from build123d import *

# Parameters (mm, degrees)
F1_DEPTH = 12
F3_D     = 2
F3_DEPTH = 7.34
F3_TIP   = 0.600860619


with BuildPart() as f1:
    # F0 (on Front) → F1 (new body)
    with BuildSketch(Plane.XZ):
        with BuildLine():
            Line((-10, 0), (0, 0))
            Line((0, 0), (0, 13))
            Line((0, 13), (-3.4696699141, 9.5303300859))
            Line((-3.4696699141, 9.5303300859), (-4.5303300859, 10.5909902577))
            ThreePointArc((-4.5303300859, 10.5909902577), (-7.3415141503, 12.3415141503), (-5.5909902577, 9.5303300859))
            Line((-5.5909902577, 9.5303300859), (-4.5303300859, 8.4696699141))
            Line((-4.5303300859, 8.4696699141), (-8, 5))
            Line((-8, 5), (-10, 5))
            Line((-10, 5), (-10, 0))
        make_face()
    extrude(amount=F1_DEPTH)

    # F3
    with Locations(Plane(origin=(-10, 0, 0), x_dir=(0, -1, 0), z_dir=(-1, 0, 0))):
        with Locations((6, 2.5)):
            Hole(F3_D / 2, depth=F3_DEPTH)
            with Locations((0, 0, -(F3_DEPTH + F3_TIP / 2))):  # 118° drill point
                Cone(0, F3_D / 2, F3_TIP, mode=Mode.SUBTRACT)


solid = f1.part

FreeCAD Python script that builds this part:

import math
import FreeCAD as App
import Part
import Sketcher
from FreeCAD import Vector

doc = App.newDocument("Part")
body = doc.addObject("PartDesign::Body", "Body")

# Sketch on XZ plane
sketch1 = body.newObject("Sketcher::SketchObject", "Sketch")
sketch1.AttachmentSupport = (doc.getObject("XZ_Plane"), [""])
sketch1.MapMode = "FlatFace"
sketch1.addGeometry([
    Part.LineSegment(Vector(-10, 0, 0), Vector(0, 0, 0)),  # 0
    Part.LineSegment(Vector(0, 0, 0), Vector(0, 13, 0)),  # 1
    Part.LineSegment(Vector(0, 13, 0), Vector(-3.5, 9.5, 0)),  # 2
    Part.LineSegment(Vector(-3.5, 9.5, 0), Vector(-4.5, 10.6, 0)),  # 3
    Part.ArcOfCircle(Part.Circle(Vector(-6.1, 11.1, 0), Vector(0, 0, 1), 1.7), math.radians(-19), math.radians(289)),  # 4
    Part.LineSegment(Vector(-5.6, 9.5, 0), Vector(-4.5, 8.5, 0)),  # 5
    Part.LineSegment(Vector(-4.5, 8.5, 0), Vector(-8, 5, 0)),  # 6
    Part.LineSegment(Vector(-8, 5, 0), Vector(-10, 5, 0)),  # 7
    Part.LineSegment(Vector(-10, 5, 0), Vector(-10, 0, 0)),  # 8
], False)
sketch1.addConstraint([
    Sketcher.Constraint("Coincident", 0, 2, 1, 1),
    Sketcher.Constraint("Coincident", 1, 2, 2, 1),
    Sketcher.Constraint("Coincident", 2, 2, 3, 1),
    Sketcher.Constraint("Coincident", 3, 2, 4, 1),
    Sketcher.Constraint("Coincident", 4, 2, 5, 1),
    Sketcher.Constraint("Coincident", 5, 2, 6, 1),
    Sketcher.Constraint("Coincident", 6, 2, 7, 1),
    Sketcher.Constraint("Coincident", 7, 2, 8, 1),
    Sketcher.Constraint("Coincident", 8, 2, 0, 1),
    Sketcher.Constraint("Horizontal", 0),
    Sketcher.Constraint("Vertical", 1),
    Sketcher.Constraint("Horizontal", 7),
    Sketcher.Constraint("Vertical", 8),
    Sketcher.Constraint("Coincident", 0, 2, -1, 1),
    Sketcher.Constraint("Perpendicular", 2, 3),
    Sketcher.Constraint("Parallel", 3, 5),
    Sketcher.Constraint("Perpendicular", 5, 6),
    Sketcher.Constraint("Horizontal", 2, 2, 4, 2),
    Sketcher.Constraint("Vertical", 3, 2, 5, 2),
    Sketcher.Constraint("Equal", 3, 5),
    Sketcher.Constraint("Equal", 2, 6),
    Sketcher.Constraint("Radius", 4, 1.7),
    Sketcher.Constraint("DistanceX", 0, 1, 0, 2, 10.0),
    Sketcher.Constraint("DistanceX", 7, 2, 7, 1, 2.0),
    Sketcher.Constraint("DistanceY", 1, 1, 1, 2, 13.0),
    Sketcher.Constraint("DistanceY", 8, 2, 8, 1, 5.0),
    Sketcher.Constraint("Distance", 3, 1.5),
])
pad1 = body.newObject("PartDesign::Pad", "Pad")
pad1.Profile = sketch1
pad1.Length = 12

# Sketch on YZ plane
sketch2 = body.newObject("Sketcher::SketchObject", "Sketch001")
sketch2.AttachmentSupport = (doc.getObject("YZ_Plane"), [""])
sketch2.MapMode = "FlatFace"
sketch2.AttachmentOffset = App.Placement(Vector(0, 0, -10), App.Rotation())
sketch2.addGeometry(Part.Circle(Vector(-6, 2.5, 0), Vector(0, 0, 1), 1), False)
sketch2.addConstraint([
    Sketcher.Constraint("Diameter", 0, 2.0),
    Sketcher.Constraint("DistanceX", 0, 3, -1, 1, 6.0),
    Sketcher.Constraint("DistanceY", -1, 1, 0, 3, 2.5),
])
doc.recompute()
hole = body.newObject("PartDesign::Hole", "Hole")
hole.Profile = sketch2
hole.ThreadType = "None"
hole.Diameter = 2
hole.DepthType = "Dimension"
hole.Depth = 7.34
hole.DrillPoint = "Angled"
hole.DrillPointAngle = 118
hole.Reversed = True

doc.recompute()
